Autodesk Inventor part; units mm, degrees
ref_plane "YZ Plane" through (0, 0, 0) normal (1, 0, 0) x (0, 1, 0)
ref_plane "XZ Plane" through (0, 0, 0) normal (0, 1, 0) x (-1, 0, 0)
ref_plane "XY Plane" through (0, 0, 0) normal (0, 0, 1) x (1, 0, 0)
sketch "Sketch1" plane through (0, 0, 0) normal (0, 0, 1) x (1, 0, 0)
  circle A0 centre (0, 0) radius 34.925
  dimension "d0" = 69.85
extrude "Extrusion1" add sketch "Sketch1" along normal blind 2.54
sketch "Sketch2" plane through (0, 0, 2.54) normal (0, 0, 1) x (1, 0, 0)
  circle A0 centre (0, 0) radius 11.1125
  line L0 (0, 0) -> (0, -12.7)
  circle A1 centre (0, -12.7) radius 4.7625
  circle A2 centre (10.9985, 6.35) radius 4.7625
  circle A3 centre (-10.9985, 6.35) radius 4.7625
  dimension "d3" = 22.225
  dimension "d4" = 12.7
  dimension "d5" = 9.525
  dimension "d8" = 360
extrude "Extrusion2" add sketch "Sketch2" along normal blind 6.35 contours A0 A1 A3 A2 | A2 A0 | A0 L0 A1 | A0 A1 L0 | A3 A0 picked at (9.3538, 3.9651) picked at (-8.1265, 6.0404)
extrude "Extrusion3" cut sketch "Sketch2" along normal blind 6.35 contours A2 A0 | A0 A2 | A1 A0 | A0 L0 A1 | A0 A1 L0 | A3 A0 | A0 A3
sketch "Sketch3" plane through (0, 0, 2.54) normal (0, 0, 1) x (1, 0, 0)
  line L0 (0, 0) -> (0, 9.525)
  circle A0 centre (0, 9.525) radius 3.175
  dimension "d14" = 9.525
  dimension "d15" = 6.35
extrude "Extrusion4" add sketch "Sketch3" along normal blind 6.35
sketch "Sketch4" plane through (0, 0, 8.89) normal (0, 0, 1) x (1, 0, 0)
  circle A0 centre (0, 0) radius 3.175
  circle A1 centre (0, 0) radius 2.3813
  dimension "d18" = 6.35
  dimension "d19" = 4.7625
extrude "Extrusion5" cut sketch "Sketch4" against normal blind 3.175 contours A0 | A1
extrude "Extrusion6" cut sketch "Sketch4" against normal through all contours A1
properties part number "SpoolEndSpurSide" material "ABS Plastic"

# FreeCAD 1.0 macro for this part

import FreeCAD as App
import Part
import Sketcher
Q = App.Units.Quantity

doc = App.newDocument("Part")
body = doc.addObject("PartDesign::Body", "Body")

sketch1 = body.newObject("Sketcher::SketchObject", "Sketch")
sketch1.AttachmentSupport = (doc.getObject("XY_Plane"), [""])
sketch1.MapMode = "FlatFace"
sketch1.addGeometry(Part.Circle(App.Vector(0, 0, 0), App.Vector(0, 0, 1), 34.925), False)
sketch1.addConstraint([
    Sketcher.Constraint("Coincident", 0, 3, -1, 1),
    Sketcher.Constraint("Diameter", 0, Q("2.75 in")),
])
pad1 = body.newObject("PartDesign::Pad", "Pad")
pad1.Profile = sketch1
pad1.Length = Q("0.1 in")

sketch2 = body.newObject("Sketcher::SketchObject", "Sketch001")
sketch2.AttachmentSupport = (doc.getObject("XY_Plane"), [""])
sketch2.MapMode = "FlatFace"
sketch2.AttachmentOffset = App.Placement(App.Vector(0, 0, 0.1 * 25.4), App.Rotation())
sketch2.addGeometry(Part.Circle(App.Vector(0, 0, 0), App.Vector(0, 0, 1), 11.1125), False)
sketch2.addConstraint([
    Sketcher.Constraint("Coincident", 0, 3, -1, 1),
    Sketcher.Constraint("Diameter", 0, Q("0.875 in")),
])
pad2 = body.newObject("PartDesign::Pad", "Pad001")
pad2.Profile = sketch2
pad2.Length = Q("0.25 in")

sketch3 = body.newObject("Sketcher::SketchObject", "Sketch002")
sketch3.AttachmentSupport = (doc.getObject("XY_Plane"), [""])
sketch3.MapMode = "FlatFace"
sketch3.AttachmentOffset = App.Placement(App.Vector(0, 0, 0.1 * 25.4), App.Rotation())
sketch3.addGeometry([
    Part.Circle(App.Vector(10.9985, 6.35, 0), App.Vector(0, 0, 1), 4.7625),
    Part.Circle(App.Vector(0, -12.7, 0), App.Vector(0, 0, 1), 4.7625),
    Part.Circle(App.Vector(-10.9985, 6.35, 0), App.Vector(0, 0, 1), 4.7625),
], False)
sketch3.addConstraint([
    Sketcher.Constraint("Equal", 0, 1),
    Sketcher.Constraint("Equal", 1, 2),
    Sketcher.Constraint("Symmetric", 0, 3, 2, 3, -2),
    Sketcher.Constraint("PointOnObject", 1, 3, -2),
    Sketcher.Constraint("Diameter", 0, Q("0.375 in")),
    Sketcher.Constraint("DistanceY", 1, 3, -1, 1, Q("0.5 in")),
    Sketcher.Constraint("DistanceY", -1, 1, 0, 3, Q("0.25 in")),
    Sketcher.Constraint("DistanceX", -1, 1, 0, 3, Q("0.433 in")),
])
pocket1 = body.newObject("PartDesign::Pocket", "Pocket")
pocket1.Profile = sketch3
pocket1.Length = Q("0.25 in")
pocket1.Reversed = True

sketch4 = body.newObject("Sketcher::SketchObject", "Sketch003")
sketch4.AttachmentSupport = (doc.getObject("XY_Plane"), [""])
sketch4.MapMode = "FlatFace"
sketch4.AttachmentOffset = App.Placement(App.Vector(0, 0, 0.1 * 25.4), App.Rotation())
sketch4.addGeometry(Part.Circle(App.Vector(0, 9.525, 0), App.Vector(0, 0, 1), 3.175), False)
sketch4.addConstraint([
    Sketcher.Constraint("PointOnObject", 0, 3, -2),
    Sketcher.Constraint("Diameter", 0, Q("0.25 in")),
    Sketcher.Constraint("DistanceY", -1, 1, 0, 3, Q("0.375 in")),
])
pad3 = body.newObject("PartDesign::Pad", "Pad002")
pad3.Profile = sketch4
pad3.Length = Q("0.25 in")

sketch5 = body.newObject("Sketcher::SketchObject", "Sketch004")
sketch5.AttachmentSupport = (doc.getObject("XY_Plane"), [""])
sketch5.MapMode = "FlatFace"
sketch5.AttachmentOffset = App.Placement(App.Vector(0, 0, 0.35 * 25.4), App.Rotation())
sketch5.addGeometry(Part.Circle(App.Vector(0, 0, 0), App.Vector(0, 0, 1), 3.175), False)
sketch5.addConstraint([
    Sketcher.Constraint("Coincident", 0, 3, -1, 1),
    Sketcher.Constraint("Diameter", 0, Q("0.25 in")),
])
pocket2 = body.newObject("PartDesign::Pocket", "Pocket001")
pocket2.Profile = sketch5
pocket2.Length = Q("0.125 in")

sketch6 = body.newObject("Sketcher::SketchObject", "Sketch005")
sketch6.AttachmentSupport = (doc.getObject("XY_Plane"), [""])
sketch6.MapMode = "FlatFace"
sketch6.AttachmentOffset = App.Placement(App.Vector(0, 0, 0.35 * 25.4), App.Rotation())
sketch6.addGeometry(Part.Circle(App.Vector(0, 0, 0), App.Vector(0, 0, 1), 2.3813), False)
sketch6.addConstraint([
    Sketcher.Constraint("Coincident", 0, 3, -1, 1),
    Sketcher.Constraint("Diameter", 0, Q("0.1875 in")),
])
pocket3 = body.newObject("PartDesign::Pocket", "Pocket002")
pocket3.Profile = sketch6
pocket3.Type = "ThroughAll"

doc.recompute()
